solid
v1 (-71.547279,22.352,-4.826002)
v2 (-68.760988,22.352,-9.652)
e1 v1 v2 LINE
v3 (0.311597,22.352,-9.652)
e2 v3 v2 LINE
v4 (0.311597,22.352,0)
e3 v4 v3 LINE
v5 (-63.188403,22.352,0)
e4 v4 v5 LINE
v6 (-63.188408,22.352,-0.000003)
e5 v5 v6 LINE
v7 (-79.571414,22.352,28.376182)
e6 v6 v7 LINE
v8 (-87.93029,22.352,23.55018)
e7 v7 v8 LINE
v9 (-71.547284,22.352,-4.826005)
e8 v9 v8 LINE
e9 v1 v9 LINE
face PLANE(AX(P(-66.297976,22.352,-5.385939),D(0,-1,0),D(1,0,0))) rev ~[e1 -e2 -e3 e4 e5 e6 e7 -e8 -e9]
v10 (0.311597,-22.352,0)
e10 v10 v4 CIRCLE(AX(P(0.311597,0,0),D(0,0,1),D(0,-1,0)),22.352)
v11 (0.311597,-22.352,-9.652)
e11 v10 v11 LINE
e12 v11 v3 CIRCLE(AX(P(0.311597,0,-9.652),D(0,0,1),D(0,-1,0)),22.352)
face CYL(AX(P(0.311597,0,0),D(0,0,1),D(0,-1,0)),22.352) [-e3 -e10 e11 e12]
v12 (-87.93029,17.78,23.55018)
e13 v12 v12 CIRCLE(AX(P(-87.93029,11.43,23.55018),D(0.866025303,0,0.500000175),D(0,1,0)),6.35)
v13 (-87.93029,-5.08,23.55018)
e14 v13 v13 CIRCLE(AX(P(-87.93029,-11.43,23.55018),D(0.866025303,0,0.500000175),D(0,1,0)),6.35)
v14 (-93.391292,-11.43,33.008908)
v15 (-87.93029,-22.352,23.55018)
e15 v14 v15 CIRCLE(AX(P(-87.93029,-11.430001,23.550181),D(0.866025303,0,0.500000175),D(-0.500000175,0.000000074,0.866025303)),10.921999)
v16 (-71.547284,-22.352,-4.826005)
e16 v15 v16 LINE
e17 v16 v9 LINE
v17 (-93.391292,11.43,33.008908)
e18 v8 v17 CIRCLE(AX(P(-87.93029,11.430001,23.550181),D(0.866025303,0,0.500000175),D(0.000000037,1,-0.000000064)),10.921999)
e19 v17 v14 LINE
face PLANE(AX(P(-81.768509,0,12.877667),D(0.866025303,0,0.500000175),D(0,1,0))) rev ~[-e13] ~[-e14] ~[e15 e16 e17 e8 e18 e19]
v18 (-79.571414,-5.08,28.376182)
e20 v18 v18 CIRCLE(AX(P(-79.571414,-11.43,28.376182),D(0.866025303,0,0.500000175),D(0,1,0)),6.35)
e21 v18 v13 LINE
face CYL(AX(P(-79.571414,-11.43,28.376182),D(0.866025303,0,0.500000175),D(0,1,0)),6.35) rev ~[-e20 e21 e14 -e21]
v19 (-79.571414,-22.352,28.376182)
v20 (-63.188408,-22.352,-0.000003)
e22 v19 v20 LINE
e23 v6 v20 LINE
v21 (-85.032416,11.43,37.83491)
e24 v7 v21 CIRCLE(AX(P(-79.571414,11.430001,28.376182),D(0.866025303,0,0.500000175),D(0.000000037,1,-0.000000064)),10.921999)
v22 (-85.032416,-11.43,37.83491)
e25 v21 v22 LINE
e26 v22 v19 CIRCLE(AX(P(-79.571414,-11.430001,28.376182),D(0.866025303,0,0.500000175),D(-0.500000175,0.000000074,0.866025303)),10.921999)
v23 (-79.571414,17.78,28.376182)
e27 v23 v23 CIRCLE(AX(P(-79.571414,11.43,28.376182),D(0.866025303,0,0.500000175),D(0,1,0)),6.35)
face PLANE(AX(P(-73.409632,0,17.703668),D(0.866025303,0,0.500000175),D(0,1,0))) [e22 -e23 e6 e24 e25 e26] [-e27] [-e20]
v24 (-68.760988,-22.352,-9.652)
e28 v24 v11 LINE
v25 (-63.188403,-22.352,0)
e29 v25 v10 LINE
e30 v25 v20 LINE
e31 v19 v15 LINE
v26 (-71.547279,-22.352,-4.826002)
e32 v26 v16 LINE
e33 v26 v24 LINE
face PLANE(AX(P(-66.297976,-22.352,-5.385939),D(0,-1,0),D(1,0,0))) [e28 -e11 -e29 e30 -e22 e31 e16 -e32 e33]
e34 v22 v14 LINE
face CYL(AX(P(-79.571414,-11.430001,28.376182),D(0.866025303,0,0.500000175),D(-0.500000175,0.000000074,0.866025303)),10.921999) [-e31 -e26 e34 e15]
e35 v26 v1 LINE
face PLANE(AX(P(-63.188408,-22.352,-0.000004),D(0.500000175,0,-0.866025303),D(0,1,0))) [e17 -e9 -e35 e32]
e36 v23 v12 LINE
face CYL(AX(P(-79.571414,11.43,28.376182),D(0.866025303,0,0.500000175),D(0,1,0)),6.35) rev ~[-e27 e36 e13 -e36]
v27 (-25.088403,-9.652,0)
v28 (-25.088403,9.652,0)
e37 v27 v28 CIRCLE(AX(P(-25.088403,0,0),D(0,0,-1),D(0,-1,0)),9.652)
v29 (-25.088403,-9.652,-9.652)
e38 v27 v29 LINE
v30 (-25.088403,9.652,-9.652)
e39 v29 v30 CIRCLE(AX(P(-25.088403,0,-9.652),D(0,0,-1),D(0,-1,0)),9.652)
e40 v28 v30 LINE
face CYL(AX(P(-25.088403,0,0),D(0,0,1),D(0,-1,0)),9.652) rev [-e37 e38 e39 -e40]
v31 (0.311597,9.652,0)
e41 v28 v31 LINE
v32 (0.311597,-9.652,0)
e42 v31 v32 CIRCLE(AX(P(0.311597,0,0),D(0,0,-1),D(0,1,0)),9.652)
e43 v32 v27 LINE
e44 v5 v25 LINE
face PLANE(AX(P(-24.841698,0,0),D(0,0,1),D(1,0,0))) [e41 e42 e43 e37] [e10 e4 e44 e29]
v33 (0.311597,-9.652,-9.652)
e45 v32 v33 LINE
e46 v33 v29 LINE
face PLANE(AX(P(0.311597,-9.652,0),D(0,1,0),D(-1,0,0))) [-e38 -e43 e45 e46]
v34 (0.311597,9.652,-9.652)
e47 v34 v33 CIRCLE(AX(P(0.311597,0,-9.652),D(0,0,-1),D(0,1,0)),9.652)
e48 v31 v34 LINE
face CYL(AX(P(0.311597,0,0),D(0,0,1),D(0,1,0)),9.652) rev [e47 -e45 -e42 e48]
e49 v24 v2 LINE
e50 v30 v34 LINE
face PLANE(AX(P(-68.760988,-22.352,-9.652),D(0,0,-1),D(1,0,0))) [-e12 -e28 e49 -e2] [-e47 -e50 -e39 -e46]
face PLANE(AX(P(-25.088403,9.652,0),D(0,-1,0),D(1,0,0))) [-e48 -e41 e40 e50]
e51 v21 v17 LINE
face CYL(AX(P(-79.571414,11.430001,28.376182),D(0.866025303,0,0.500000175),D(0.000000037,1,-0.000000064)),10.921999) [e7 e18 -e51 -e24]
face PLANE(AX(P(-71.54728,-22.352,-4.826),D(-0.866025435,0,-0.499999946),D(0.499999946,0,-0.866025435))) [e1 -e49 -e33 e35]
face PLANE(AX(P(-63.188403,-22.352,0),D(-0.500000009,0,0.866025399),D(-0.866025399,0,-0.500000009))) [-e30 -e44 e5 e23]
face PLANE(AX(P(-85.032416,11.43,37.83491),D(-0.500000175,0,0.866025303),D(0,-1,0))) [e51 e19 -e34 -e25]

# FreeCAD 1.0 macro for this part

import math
import FreeCAD as App
import Part
import Sketcher

V = App.Vector
Q = App.Units.Quantity


def add_polygon(sketch, points):
    """Adds a closed chain of lines whose ends are joined by coincident constraints."""
    first, n = sketch.GeometryCount, len(points)
    for a, b in zip(points, points[1:] + points[:1]):
        sketch.addGeometry(Part.LineSegment(App.Vector(*a, 0), App.Vector(*b, 0)), False)
    for i in range(n):
        sketch.addConstraint(Sketcher.Constraint("Coincident", first + i, 2, first + (i + 1) % n, 1))

doc = App.newDocument("Part")
body = doc.addObject("PartDesign::Body", "Body")

# Sketch on an angled plane
sketch1 = body.newObject("Sketcher::SketchObject", "Sketch")
sketch1.Placement = App.Placement(V(-47.391302, 0, -27.361381), App.Rotation(V(0, 1, 0), V(-0.500000175, 0, 0.866025303), V(0.866025303, 0, 0.500000175), "ZXY"))
sketch1.addGeometry([
    Part.LineSegment(V(-22, 64, 0), V(-22, 32, 0)),  # 0
    Part.LineSegment(V(-22, 32, 0), V(22, 32, 0)),  # 1
    Part.LineSegment(V(22, 32, 0), V(22, 64, 0)),  # 2
    Part.ArcOfCircle(Part.Circle(V(11, 64, 0), V(0, 0, 1), 11), math.radians(0), math.radians(90)),  # 3
    Part.LineSegment(V(11, 75, 0), V(-11, 75, 0)),  # 4
    Part.ArcOfCircle(Part.Circle(V(-11, 64, 0), V(0, 0, 1), 11), math.radians(90), math.radians(180)),  # 5
    Part.Circle(V(-11, 64, 0), V(0, 0, 1), 6),  # 6
    Part.Circle(V(11, 64, 0), V(0, 0, 1), 6),  # 7
], False)
sketch1.addConstraint([
    Sketcher.Constraint("Coincident", 0, 2, 1, 1),
    Sketcher.Constraint("Coincident", 1, 2, 2, 1),
    Sketcher.Constraint("Tangent", 2, 2, 3, 1),
    Sketcher.Constraint("Tangent", 3, 2, 4, 1),
    Sketcher.Constraint("Tangent", 4, 2, 5, 1),
    Sketcher.Constraint("Tangent", 5, 2, 0, 1),
    Sketcher.Constraint("Vertical", 0),
    Sketcher.Constraint("Horizontal", 1),
    Sketcher.Constraint("Vertical", 2),
    Sketcher.Constraint("Horizontal", 4),
    Sketcher.Constraint("Coincident", 6, 3, 5, 3),
    Sketcher.Constraint("Coincident", 7, 3, 3, 3),
    Sketcher.Constraint("Equal", 3, 5),
    Sketcher.Constraint("Equal", 6, 7),
    Sketcher.Constraint("Diameter", 6, Q("0.5 in")),
    Sketcher.Constraint("Radius", 3, Q("0.43 in")),
    Sketcher.Constraint("DistanceX", 4, 2, 4, 1, Q("0.9 in")),
    Sketcher.Constraint("DistanceY", 0, 2, 0, 1, Q("1.29 in")),
    Sketcher.Constraint("DistanceX", -1, 1, 3, 3, Q("0.45 in")),
    Sketcher.Constraint("DistanceY", -1, 1, 3, 3, Q("64.360202 mm")),
])
pad1 = body.newObject("PartDesign::Pad", "Pad")
pad1.Profile = sketch1
pad1.Length = Q("0.38 in")
pad1.Reversed = True
body2 = doc.addObject("PartDesign::Body", "Body001")

# Sketch on XY plane
sketch2 = body2.newObject("Sketcher::SketchObject", "Sketch001")
sketch2.AttachmentSupport = (doc.getObject("XY_Plane001"), [""])
sketch2.MapMode = "FlatFace"
sketch2.addGeometry([
    Part.LineSegment(V(-63, -22, 0), V(0, -22, 0)),  # 0
    Part.ArcOfCircle(Part.Circle(V(0, 0, 0), V(0, 0, 1), 22), math.radians(-90), math.radians(90)),  # 1
    Part.LineSegment(V(0, 22, 0), V(-63, 22, 0)),  # 2
    Part.LineSegment(V(-63, 22, 0), V(-63, -22, 0)),  # 3
    Part.LineSegment(V(-25, 10, 0), V(0, 10, 0)),  # 4
    Part.ArcOfCircle(Part.Circle(V(0, 0, 0), V(0, 0, 1), 10), math.radians(-90), math.radians(90)),  # 5
    Part.LineSegment(V(0, -10, 0), V(-25, -10, 0)),  # 6
    Part.ArcOfCircle(Part.Circle(V(-25, 0, 0), V(0, 0, 1), 10), math.radians(90), math.radians(270)),  # 7
], False)
sketch2.addConstraint([
    Sketcher.Constraint("Tangent", 0, 2, 1, 1),
    Sketcher.Constraint("Tangent", 1, 2, 2, 1),
    Sketcher.Constraint("Coincident", 2, 2, 3, 1),
    Sketcher.Constraint("Coincident", 3, 2, 0, 1),
    Sketcher.Constraint("Tangent", 4, 2, 5, 2),
    Sketcher.Constraint("Tangent", 5, 1, 6, 1),
    Sketcher.Constraint("Tangent", 6, 2, 7, 2),
    Sketcher.Constraint("Tangent", 7, 1, 4, 1),
    Sketcher.Constraint("Horizontal", 0),
    Sketcher.Constraint("Horizontal", 2),
    Sketcher.Constraint("Vertical", 3),
    Sketcher.Constraint("Horizontal", 4),
    Sketcher.Constraint("Horizontal", 6),
    Sketcher.Constraint("Coincident", 5, 3, 1, 3),
    Sketcher.Constraint("PointOnObject", 1, 3, -1),
    Sketcher.Constraint("DistanceX", 4, 1, 4, 2, Q("1 in")),
    Sketcher.Constraint("Radius", 1, Q("0.88 in")),
    Sketcher.Constraint("Radius", 5, Q("0.38 in")),
    Sketcher.Constraint("DistanceX", 0, 1, 0, 2, Q("2.5 in")),
    Sketcher.Constraint("DistanceX", -1, 1, 1, 3, Q("0.311597 mm")),
])
pad2 = body2.newObject("PartDesign::Pad", "Pad001")
pad2.Profile = sketch2
pad2.Length = Q("0.38 in")
pad2.Reversed = True
body.AllowCompound = True
doc.recompute()

boolean = body.newObject("PartDesign::Boolean", "Boolean")
boolean.Type = "Fuse"
boolean.addObjects([body2])

# Sketch on XZ plane
sketch3 = body.newObject("Sketcher::SketchObject", "Sketch002")
sketch3.AttachmentSupport = (doc.getObject("XZ_Plane"), [""])
sketch3.MapMode = "FlatFace"
sketch3.AttachmentOffset = App.Placement(V(0, 0, 0.88 * 25.4), App.Rotation())
add_polygon(sketch3, [(-63, 0), (-72, -5), (-69, -10), (-63, -10)])  # lines 0-3
sketch3.addConstraint([
    Sketcher.Constraint("Horizontal", 2),
    Sketcher.Constraint("Vertical", 3),
    Sketcher.Constraint("PointOnObject", 3, 2, -1),
    Sketcher.Constraint("Perpendicular", 0, 1),
    Sketcher.Constraint("Angle", 0, Q("-149.999999 deg")),
    Sketcher.Constraint("DistanceY", 3, 1, 3, 2, Q("0.38 in")),
    Sketcher.Constraint("Distance", 0, Q("0.38 in")),
    Sketcher.Constraint("DistanceX", 0, 2, -1, 1, Q("71.54728 mm")),
])
pad3 = body.newObject("PartDesign::Pad", "Pad002")
pad3.Profile = sketch3
pad3.Length = Q("1.76 in")
pad3.Reversed = True

doc.recompute()
